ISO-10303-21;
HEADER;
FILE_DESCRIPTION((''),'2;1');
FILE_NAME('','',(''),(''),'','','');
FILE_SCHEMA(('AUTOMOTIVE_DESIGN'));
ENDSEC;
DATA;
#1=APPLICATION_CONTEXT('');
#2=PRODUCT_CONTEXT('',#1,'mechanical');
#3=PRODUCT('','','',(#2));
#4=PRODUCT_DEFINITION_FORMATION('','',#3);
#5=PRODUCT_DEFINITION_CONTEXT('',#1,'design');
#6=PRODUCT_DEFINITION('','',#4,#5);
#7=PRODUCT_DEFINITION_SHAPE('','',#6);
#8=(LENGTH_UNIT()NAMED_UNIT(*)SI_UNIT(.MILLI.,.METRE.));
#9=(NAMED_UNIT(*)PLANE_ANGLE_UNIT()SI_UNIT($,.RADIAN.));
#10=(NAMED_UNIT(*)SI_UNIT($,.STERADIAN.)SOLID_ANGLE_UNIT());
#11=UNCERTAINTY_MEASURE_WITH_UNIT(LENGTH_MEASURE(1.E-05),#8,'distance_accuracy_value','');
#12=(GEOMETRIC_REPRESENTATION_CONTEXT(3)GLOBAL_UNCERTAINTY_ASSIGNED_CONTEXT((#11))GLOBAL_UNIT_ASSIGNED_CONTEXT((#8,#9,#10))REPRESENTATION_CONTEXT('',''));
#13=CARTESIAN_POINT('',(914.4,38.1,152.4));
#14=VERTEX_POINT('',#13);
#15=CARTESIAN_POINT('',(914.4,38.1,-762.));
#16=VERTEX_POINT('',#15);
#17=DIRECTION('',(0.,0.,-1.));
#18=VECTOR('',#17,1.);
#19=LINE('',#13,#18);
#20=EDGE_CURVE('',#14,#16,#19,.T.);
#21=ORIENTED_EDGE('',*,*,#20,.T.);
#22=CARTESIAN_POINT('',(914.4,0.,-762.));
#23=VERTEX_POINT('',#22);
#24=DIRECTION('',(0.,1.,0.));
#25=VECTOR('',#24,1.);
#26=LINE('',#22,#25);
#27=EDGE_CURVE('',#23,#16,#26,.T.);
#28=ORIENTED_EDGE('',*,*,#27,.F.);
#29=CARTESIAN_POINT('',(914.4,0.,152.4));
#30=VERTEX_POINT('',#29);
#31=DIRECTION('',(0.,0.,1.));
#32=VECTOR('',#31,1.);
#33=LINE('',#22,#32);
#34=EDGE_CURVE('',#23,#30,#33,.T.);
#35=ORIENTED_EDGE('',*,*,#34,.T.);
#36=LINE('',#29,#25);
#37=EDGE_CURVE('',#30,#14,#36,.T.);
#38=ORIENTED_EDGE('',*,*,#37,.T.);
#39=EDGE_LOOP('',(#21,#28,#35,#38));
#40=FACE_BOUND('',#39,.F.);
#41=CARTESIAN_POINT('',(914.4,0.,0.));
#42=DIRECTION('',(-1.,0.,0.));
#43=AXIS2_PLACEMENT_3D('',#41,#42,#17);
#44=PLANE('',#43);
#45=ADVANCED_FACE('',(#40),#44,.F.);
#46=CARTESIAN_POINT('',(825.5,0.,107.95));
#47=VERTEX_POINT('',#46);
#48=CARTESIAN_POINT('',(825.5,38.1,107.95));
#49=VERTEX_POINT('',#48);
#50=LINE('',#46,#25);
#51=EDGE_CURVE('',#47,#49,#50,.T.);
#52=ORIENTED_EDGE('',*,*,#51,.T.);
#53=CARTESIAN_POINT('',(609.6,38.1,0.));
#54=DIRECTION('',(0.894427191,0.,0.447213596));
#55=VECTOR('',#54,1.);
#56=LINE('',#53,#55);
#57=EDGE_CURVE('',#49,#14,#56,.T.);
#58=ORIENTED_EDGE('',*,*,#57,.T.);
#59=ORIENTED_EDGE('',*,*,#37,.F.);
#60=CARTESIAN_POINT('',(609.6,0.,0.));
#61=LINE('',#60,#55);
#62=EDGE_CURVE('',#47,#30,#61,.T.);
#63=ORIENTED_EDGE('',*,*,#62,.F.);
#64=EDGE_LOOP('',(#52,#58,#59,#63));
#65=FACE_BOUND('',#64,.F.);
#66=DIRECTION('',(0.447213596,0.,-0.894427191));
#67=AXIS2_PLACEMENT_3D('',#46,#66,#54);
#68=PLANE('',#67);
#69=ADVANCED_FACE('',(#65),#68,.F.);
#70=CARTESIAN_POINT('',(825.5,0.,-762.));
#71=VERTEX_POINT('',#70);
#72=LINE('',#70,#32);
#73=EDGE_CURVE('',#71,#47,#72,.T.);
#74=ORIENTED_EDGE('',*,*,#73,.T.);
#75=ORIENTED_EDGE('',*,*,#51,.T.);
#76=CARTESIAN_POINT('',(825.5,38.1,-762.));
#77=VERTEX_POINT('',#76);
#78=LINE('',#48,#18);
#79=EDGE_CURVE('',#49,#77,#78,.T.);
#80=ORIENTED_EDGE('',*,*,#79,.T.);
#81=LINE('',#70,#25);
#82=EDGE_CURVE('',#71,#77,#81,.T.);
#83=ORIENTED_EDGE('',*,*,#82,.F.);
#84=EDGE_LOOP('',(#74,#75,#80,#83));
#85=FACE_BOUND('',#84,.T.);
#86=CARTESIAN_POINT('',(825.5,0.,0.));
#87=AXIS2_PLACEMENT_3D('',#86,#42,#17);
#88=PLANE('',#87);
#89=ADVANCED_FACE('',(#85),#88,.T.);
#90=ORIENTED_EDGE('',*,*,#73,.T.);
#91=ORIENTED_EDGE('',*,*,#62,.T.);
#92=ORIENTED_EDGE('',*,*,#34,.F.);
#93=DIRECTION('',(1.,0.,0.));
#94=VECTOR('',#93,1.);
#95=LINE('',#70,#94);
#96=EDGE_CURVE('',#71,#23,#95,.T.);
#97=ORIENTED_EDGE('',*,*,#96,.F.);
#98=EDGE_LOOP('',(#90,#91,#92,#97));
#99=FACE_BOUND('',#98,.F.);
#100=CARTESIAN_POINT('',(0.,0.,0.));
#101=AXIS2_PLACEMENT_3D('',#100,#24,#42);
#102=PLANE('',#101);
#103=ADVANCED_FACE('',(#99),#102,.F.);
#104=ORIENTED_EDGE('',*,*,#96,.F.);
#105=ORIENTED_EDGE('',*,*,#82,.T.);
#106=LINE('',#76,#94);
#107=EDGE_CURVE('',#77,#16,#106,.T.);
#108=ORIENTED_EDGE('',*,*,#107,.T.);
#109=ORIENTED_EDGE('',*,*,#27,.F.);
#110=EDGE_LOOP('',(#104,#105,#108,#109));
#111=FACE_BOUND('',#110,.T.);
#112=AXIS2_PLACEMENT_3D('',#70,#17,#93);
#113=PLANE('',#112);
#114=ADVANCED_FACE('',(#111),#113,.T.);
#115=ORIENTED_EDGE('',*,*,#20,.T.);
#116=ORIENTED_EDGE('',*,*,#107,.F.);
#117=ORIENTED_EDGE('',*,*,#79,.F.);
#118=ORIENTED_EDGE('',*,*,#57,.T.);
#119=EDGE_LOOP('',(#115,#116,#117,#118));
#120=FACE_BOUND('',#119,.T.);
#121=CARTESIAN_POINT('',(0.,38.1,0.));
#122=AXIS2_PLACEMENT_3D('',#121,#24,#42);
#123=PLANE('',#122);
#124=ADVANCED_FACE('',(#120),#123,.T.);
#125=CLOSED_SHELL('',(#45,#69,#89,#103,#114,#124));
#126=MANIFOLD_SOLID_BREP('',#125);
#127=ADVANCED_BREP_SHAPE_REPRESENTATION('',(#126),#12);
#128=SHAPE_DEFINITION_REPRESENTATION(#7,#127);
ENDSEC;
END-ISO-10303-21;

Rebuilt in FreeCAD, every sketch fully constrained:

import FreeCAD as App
import Part
import Sketcher
Q = App.Units.Quantity


def add_polygon(sketch, points):
    """Adds a closed chain of lines whose ends are joined by coincident constraints."""
    first, n = sketch.GeometryCount, len(points)
    for a, b in zip(points, points[1:] + points[:1]):
        sketch.addGeometry(Part.LineSegment(App.Vector(*a, 0), App.Vector(*b, 0)), False)
    for i in range(n):
        sketch.addConstraint(Sketcher.Constraint("Coincident", first + i, 2, first + (i + 1) % n, 1))

doc = App.newDocument("Part")
params = doc.addObject("Spreadsheet::Sheet", "Params")
for row, (alias, value) in enumerate([
    ("sketch1_height", "36 in"),
    ("sketch1_width", "3.5 in"),
    ("sketch1_height2", "34.25 in"),
    ("pad1_length", "1.5 in"),
], start=1):
    params.set(f"A{row}", alias)
    params.set(f"B{row}", "=" + value)
    params.setAlias(f"B{row}", alias)

body = doc.addObject("PartDesign::Body", "Body")

sketch1 = doc.addObject("Sketcher::SketchObject", "Sketch")
body.addObject(sketch1)
sketch1.AttachmentSupport = (doc.XZ_Plane, [""])
sketch1.MapMode = "FlatFace"
add_polygon(sketch1, [(826, -762), (826, 108), (914, 152), (914, -762)])
sketch1.addConstraint([
    Sketcher.Constraint("Vertical", 0),
    Sketcher.Constraint("Vertical", 2),
    Sketcher.Constraint("Horizontal", 3),
    Sketcher.Constraint("DistanceY", 2, 2, 2, 1, Q("36 in")),
    Sketcher.Constraint("DistanceX", 3, 2, 3, 1, Q("3.5 in")),
    Sketcher.Constraint("DistanceX", -1, 1, 1, 2, Q("36 in")),
    Sketcher.Constraint("DistanceY", -1, 1, 1, 2, Q("6 in")),
    Sketcher.Constraint("DistanceY", 0, 1, 0, 2, Q("34.25 in")),
])
sketch1.setExpression("Constraints[7]", "Params.sketch1_height")
sketch1.setExpression("Constraints[8]", "Params.sketch1_width")
sketch1.setExpression("Constraints[11]", "Params.sketch1_height2")
pad1 = doc.addObject("PartDesign::Pad", "Pad")
body.addObject(pad1)
pad1.Profile = sketch1
pad1.setExpression("Length", "Params.pad1_length")
pad1.Reversed = True

doc.recompute()
